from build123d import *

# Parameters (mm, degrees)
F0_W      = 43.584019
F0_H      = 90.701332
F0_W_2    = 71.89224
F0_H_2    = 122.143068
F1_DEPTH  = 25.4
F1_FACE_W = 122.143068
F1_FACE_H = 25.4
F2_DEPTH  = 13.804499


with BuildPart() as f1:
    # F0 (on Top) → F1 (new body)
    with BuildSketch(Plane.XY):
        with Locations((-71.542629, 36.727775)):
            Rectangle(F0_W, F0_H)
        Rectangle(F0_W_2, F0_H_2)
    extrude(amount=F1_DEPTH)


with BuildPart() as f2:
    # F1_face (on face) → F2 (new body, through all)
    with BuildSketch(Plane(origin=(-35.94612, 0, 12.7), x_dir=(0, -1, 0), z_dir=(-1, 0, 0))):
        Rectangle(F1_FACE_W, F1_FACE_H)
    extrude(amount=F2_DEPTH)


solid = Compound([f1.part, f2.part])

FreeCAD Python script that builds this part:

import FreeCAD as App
import Part
import Sketcher
from FreeCAD import Vector
Q = App.Units.Quantity

doc = App.newDocument("Part")
body = doc.addObject("PartDesign::Body", "Body")
body.AllowCompound = True

sketch1 = doc.addObject("Sketcher::SketchObject", "Sketch")
body.addObject(sketch1)
sketch1.AttachmentSupport = (doc.XY_Plane, [""])
sketch1.MapMode = "FlatFace"
sketch1.addGeometry([
    Part.LineSegment(Vector(-93.334638, 82.078441, 0), Vector(-93.334638, -8.622891, 0)),
    Part.LineSegment(Vector(-93.334638, -8.622891, 0), Vector(-49.750619, -8.622891, 0)),
    Part.LineSegment(Vector(-49.750619, -8.622891, 0), Vector(-49.750619, 82.078441, 0)),
    Part.LineSegment(Vector(-49.750619, 82.078441, 0), Vector(-93.334638, 82.078441, 0)),
    Part.LineSegment(Vector(-35.94612, 61.071534, 0), Vector(-35.94612, -61.071534, 0)),
    Part.LineSegment(Vector(-35.94612, -61.071534, 0), Vector(35.94612, -61.071534, 0)),
    Part.LineSegment(Vector(35.94612, -61.071534, 0), Vector(35.94612, 61.071534, 0)),
    Part.LineSegment(Vector(35.94612, 61.071534, 0), Vector(-35.94612, 61.071534, 0)),
], False)
sketch1.addConstraint([
    Sketcher.Constraint("Coincident", 0, 2, 1, 1),
    Sketcher.Constraint("Coincident", 1, 2, 2, 1),
    Sketcher.Constraint("Coincident", 2, 2, 3, 1),
    Sketcher.Constraint("Coincident", 3, 2, 0, 1),
    Sketcher.Constraint("Coincident", 4, 2, 5, 1),
    Sketcher.Constraint("Coincident", 5, 2, 6, 1),
    Sketcher.Constraint("Coincident", 6, 2, 7, 1),
    Sketcher.Constraint("Coincident", 7, 2, 4, 1),
    Sketcher.Constraint("Vertical", 0),
    Sketcher.Constraint("Horizontal", 1),
    Sketcher.Constraint("Vertical", 2),
    Sketcher.Constraint("Horizontal", 3),
    Sketcher.Constraint("Vertical", 4),
    Sketcher.Constraint("Horizontal", 5),
    Sketcher.Constraint("Vertical", 6),
    Sketcher.Constraint("Horizontal", 7),
    Sketcher.Constraint("Symmetric", 4, 2, 6, 2, -1, 1),
    Sketcher.Constraint("DistanceX", 1, 1, 1, 2, 43.584019),
    Sketcher.Constraint("DistanceX", 5, 1, 5, 2, 71.89224),
    Sketcher.Constraint("DistanceY", 0, 2, 0, 1, 90.701332),
    Sketcher.Constraint("DistanceY", 4, 2, 4, 1, 122.143068),
    Sketcher.Constraint("DistanceX", 1, 2, 4, 2, 13.804499),
    Sketcher.Constraint("DistanceY", 0, 2, -1, 1, 8.622891),
])
pad1 = doc.addObject("PartDesign::Pad", "Pad")
body.addObject(pad1)
pad1.Profile = sketch1
pad1.Length = Q("1 in")
body2 = doc.addObject("PartDesign::Body", "Body001")

sketch2 = doc.addObject("Sketcher::SketchObject", "Sketch001")
body2.addObject(sketch2)
sketch2.AttachmentSupport = (doc.getObject("YZ_Plane001"), [""])
sketch2.MapMode = "FlatFace"
sketch2.AttachmentOffset = App.Placement(Vector(0, 0, -35.94612), App.Rotation())
sketch2.addGeometry([
    Part.LineSegment(Vector(61.071534, 25.4, 0), Vector(61.071534, 0, 0)),
    Part.LineSegment(Vector(61.071534, 0, 0), Vector(-61.071534, 0, 0)),
    Part.LineSegment(Vector(-61.071534, 0, 0), Vector(-61.071534, 25.4, 0)),
    Part.LineSegment(Vector(-61.071534, 25.4, 0), Vector(61.071534, 25.4, 0)),
], False)
sketch2.addConstraint([
    Sketcher.Constraint("Coincident", 0, 2, 1, 1),
    Sketcher.Constraint("Coincident", 1, 2, 2, 1),
    Sketcher.Constraint("Coincident", 2, 2, 3, 1),
    Sketcher.Constraint("Coincident", 3, 2, 0, 1),
    Sketcher.Constraint("Vertical", 0),
    Sketcher.Constraint("Horizontal", 1),
    Sketcher.Constraint("Vertical", 2),
    Sketcher.Constraint("Horizontal", 3),
    Sketcher.Constraint("Symmetric", 0, 2, 1, 2, -1, 1),
    Sketcher.Constraint("DistanceY", 0, 2, 0, 1, Q("1 in")),
    Sketcher.Constraint("DistanceX", 1, 2, 1, 1, 122.143068),
])
pad2 = doc.addObject("PartDesign::Pad", "Pad001")
body2.addObject(pad2)
pad2.Profile = sketch2
pad2.Length = 13.804499
pad2.Reversed = True

doc.recompute()
